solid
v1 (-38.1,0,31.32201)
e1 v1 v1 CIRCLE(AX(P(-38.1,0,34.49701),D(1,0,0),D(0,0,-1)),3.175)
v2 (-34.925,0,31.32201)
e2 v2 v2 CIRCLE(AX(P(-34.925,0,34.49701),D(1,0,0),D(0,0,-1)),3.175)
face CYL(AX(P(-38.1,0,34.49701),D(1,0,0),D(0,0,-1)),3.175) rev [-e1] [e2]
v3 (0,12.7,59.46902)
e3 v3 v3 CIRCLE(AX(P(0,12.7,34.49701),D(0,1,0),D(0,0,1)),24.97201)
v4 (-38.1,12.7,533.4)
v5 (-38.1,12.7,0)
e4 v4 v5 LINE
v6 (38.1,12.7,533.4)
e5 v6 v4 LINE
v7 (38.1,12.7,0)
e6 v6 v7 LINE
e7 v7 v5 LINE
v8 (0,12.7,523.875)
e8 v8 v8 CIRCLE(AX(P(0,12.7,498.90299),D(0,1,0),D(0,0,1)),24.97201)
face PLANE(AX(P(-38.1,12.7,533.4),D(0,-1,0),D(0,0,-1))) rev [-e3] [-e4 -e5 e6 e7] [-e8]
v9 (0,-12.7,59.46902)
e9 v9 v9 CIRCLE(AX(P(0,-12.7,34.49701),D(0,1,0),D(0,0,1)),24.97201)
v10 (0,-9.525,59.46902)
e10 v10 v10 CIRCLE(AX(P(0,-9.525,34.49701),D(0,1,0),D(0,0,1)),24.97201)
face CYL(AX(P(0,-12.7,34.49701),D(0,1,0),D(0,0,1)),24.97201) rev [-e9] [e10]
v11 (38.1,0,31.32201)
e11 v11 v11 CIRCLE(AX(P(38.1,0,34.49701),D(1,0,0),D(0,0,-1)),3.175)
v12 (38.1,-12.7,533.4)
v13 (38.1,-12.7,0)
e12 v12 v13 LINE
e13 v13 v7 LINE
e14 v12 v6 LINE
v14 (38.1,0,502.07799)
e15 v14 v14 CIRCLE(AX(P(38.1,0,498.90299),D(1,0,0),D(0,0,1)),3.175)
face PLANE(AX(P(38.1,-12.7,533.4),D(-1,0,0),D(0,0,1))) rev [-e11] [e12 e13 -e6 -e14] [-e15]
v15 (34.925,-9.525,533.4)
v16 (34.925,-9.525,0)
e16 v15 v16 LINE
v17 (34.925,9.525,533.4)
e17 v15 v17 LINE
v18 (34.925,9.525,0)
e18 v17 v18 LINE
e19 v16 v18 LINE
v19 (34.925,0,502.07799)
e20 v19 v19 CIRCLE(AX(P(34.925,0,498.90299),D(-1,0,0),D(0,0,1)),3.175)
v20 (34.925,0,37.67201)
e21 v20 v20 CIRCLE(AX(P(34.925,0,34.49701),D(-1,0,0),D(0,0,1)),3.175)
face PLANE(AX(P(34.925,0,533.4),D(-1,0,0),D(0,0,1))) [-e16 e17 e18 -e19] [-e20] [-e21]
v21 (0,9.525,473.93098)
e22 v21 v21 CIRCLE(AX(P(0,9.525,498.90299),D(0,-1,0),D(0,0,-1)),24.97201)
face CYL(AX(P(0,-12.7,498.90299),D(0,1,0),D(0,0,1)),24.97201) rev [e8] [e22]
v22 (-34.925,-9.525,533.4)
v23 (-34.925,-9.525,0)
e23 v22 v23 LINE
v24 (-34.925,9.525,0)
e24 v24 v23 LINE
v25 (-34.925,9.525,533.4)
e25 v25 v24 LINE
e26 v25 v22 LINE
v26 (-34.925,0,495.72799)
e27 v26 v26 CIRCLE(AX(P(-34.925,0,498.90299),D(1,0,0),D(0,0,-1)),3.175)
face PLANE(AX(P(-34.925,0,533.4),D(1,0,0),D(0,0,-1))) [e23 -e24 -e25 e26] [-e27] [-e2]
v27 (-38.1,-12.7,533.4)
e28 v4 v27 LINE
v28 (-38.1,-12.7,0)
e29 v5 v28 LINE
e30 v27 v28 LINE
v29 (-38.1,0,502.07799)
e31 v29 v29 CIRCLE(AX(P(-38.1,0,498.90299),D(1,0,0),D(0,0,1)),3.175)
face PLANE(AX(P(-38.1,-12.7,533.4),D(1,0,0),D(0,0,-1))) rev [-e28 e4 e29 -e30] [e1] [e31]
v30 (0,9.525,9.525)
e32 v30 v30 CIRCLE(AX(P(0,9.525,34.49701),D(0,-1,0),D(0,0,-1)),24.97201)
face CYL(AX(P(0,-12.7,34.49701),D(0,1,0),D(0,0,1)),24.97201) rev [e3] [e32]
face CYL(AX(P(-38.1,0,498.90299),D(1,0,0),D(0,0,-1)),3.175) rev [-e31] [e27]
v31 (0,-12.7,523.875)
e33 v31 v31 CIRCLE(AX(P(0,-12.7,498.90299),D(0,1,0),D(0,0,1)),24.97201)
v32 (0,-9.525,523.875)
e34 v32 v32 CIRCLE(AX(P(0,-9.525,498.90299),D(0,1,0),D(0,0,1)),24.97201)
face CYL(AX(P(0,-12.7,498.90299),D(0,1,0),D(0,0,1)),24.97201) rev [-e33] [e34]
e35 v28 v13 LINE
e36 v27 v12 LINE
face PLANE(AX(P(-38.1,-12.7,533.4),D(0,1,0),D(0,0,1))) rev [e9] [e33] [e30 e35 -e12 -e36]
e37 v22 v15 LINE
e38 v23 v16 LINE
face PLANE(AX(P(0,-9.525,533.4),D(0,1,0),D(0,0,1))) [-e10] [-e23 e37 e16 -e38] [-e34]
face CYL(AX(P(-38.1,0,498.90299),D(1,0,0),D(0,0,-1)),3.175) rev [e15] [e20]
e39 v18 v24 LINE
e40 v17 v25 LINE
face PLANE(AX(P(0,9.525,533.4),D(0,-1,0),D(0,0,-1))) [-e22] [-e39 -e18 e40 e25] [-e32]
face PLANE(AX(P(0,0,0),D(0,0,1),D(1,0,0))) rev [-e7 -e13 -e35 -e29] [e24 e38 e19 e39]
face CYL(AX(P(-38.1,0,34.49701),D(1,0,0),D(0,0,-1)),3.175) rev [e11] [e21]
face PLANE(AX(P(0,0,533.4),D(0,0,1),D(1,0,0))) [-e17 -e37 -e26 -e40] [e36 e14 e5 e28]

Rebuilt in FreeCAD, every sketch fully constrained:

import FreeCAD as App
import Part
import Sketcher
Q = App.Units.Quantity


def add_polygon(sketch, points):
    """Adds a closed chain of lines whose ends are joined by coincident constraints."""
    first, n = sketch.GeometryCount, len(points)
    for a, b in zip(points, points[1:] + points[:1]):
        sketch.addGeometry(Part.LineSegment(App.Vector(*a, 0), App.Vector(*b, 0)), False)
    for i in range(n):
        sketch.addConstraint(Sketcher.Constraint("Coincident", first + i, 2, first + (i + 1) % n, 1))

doc = App.newDocument("Part")
body = doc.addObject("PartDesign::Body", "Body")

# Sketch on XY plane
sketch1 = body.newObject("Sketcher::SketchObject", "Sketch")
sketch1.AttachmentSupport = (doc.getObject("XY_Plane"), [""])
sketch1.MapMode = "FlatFace"
add_polygon(sketch1, [(-38, 13), (-38, -13), (38, -13), (38, 13)])  # lines 0-3
add_polygon(sketch1, [(35, -10), (-35, -10), (-35, 10), (35, 10)])  # lines 4-7
sketch1.addConstraint(Sketcher.Constraint("Vertical", 0))
sketch1.addConstraint(Sketcher.Constraint("Horizontal", 1))
sketch1.addConstraint(Sketcher.Constraint("Vertical", 2))
sketch1.addConstraint(Sketcher.Constraint("Horizontal", 3))
sketch1.addConstraint(Sketcher.Constraint("Horizontal", 4))
sketch1.addConstraint(Sketcher.Constraint("Vertical", 5))
sketch1.addConstraint(Sketcher.Constraint("Horizontal", 6))
sketch1.addConstraint(Sketcher.Constraint("Vertical", 7))
sketch1.addConstraint(Sketcher.Constraint("Symmetric", 0, 2, 2, 2, -1, 1))
sketch1.addConstraint(Sketcher.Constraint("Symmetric", 4, 2, 6, 2, -1, 1))
sketch1.addConstraint(Sketcher.Constraint("DistanceX", 1, 1, 1, 2, Q("3 in")))
sketch1.addConstraint(Sketcher.Constraint("DistanceY", 0, 2, 0, 1, Q("1 in")))
sketch1.addConstraint(Sketcher.Constraint("DistanceX", 4, 2, 4, 1, Q("2.75 in")))
sketch1.addConstraint(Sketcher.Constraint("DistanceY", 5, 1, 5, 2, Q("0.75 in")))
pad1 = body.newObject("PartDesign::Pad", "Pad")
pad1.Profile = sketch1
pad1.Length = Q("21 in")

# Sketch on XZ plane
sketch2 = body.newObject("Sketcher::SketchObject", "Sketch001")
sketch2.AttachmentSupport = (doc.getObject("XZ_Plane"), [""])
sketch2.MapMode = "FlatFace"
sketch2.AttachmentOffset = App.Placement(App.Vector(0, 0, -0.5 * 25.4), App.Rotation())
sketch2.addGeometry(Part.Circle(App.Vector(0, 34, 0), App.Vector(0, 0, 1), 25), False)
sketch2.addGeometry(Part.Circle(App.Vector(0, 499, 0), App.Vector(0, 0, 1), 25), False)
sketch2.addConstraint(Sketcher.Constraint("Equal", 0, 1))
sketch2.addConstraint(Sketcher.Constraint("PointOnObject", 0, 3, -2))
sketch2.addConstraint(Sketcher.Constraint("PointOnObject", 1, 3, -2))
sketch2.addConstraint(Sketcher.Constraint("Diameter", 0, Q("1.9663 in")))
sketch2.addConstraint(Sketcher.Constraint("DistanceY", 0, 3, 1, 3, Q("18.2837 in")))
sketch2.addConstraint(Sketcher.Constraint("DistanceY", -1, 1, 0, 3, Q("34.49701 mm")))
pocket1 = body.newObject("PartDesign::Pocket", "Pocket")
pocket1.Profile = sketch2
pocket1.Type = "ThroughAll"
pocket1.Reversed = True

# Sketch on YZ plane
sketch3 = body.newObject("Sketcher::SketchObject", "Sketch002")
sketch3.AttachmentSupport = (doc.getObject("YZ_Plane"), [""])
sketch3.MapMode = "FlatFace"
sketch3.AttachmentOffset = App.Placement(App.Vector(0, 0, 1.5 * 25.4), App.Rotation())
sketch3.addGeometry(Part.Circle(App.Vector(0, 34.5, 0), App.Vector(0, 0, 1), 3.2), False)
sketch3.addGeometry(Part.Circle(App.Vector(0, 498.9, 0), App.Vector(0, 0, 1), 3.2), False)
sketch3.addConstraint(Sketcher.Constraint("Equal", 0, 1))
sketch3.addConstraint(Sketcher.Constraint("PointOnObject", 0, 3, -2))
sketch3.addConstraint(Sketcher.Constraint("PointOnObject", 1, 3, -2))
sketch3.addConstraint(Sketcher.Constraint("Diameter", 0, Q("0.25 in")))
sketch3.addConstraint(Sketcher.Constraint("DistanceY", 0, 3, 1, 3, Q("18.2837 in")))
sketch3.addConstraint(Sketcher.Constraint("DistanceY", -1, 1, 0, 3, Q("34.49701 mm")))
pocket2 = body.newObject("PartDesign::Pocket", "Pocket001")
pocket2.Profile = sketch3
pocket2.Type = "ThroughAll"

doc.recompute()
